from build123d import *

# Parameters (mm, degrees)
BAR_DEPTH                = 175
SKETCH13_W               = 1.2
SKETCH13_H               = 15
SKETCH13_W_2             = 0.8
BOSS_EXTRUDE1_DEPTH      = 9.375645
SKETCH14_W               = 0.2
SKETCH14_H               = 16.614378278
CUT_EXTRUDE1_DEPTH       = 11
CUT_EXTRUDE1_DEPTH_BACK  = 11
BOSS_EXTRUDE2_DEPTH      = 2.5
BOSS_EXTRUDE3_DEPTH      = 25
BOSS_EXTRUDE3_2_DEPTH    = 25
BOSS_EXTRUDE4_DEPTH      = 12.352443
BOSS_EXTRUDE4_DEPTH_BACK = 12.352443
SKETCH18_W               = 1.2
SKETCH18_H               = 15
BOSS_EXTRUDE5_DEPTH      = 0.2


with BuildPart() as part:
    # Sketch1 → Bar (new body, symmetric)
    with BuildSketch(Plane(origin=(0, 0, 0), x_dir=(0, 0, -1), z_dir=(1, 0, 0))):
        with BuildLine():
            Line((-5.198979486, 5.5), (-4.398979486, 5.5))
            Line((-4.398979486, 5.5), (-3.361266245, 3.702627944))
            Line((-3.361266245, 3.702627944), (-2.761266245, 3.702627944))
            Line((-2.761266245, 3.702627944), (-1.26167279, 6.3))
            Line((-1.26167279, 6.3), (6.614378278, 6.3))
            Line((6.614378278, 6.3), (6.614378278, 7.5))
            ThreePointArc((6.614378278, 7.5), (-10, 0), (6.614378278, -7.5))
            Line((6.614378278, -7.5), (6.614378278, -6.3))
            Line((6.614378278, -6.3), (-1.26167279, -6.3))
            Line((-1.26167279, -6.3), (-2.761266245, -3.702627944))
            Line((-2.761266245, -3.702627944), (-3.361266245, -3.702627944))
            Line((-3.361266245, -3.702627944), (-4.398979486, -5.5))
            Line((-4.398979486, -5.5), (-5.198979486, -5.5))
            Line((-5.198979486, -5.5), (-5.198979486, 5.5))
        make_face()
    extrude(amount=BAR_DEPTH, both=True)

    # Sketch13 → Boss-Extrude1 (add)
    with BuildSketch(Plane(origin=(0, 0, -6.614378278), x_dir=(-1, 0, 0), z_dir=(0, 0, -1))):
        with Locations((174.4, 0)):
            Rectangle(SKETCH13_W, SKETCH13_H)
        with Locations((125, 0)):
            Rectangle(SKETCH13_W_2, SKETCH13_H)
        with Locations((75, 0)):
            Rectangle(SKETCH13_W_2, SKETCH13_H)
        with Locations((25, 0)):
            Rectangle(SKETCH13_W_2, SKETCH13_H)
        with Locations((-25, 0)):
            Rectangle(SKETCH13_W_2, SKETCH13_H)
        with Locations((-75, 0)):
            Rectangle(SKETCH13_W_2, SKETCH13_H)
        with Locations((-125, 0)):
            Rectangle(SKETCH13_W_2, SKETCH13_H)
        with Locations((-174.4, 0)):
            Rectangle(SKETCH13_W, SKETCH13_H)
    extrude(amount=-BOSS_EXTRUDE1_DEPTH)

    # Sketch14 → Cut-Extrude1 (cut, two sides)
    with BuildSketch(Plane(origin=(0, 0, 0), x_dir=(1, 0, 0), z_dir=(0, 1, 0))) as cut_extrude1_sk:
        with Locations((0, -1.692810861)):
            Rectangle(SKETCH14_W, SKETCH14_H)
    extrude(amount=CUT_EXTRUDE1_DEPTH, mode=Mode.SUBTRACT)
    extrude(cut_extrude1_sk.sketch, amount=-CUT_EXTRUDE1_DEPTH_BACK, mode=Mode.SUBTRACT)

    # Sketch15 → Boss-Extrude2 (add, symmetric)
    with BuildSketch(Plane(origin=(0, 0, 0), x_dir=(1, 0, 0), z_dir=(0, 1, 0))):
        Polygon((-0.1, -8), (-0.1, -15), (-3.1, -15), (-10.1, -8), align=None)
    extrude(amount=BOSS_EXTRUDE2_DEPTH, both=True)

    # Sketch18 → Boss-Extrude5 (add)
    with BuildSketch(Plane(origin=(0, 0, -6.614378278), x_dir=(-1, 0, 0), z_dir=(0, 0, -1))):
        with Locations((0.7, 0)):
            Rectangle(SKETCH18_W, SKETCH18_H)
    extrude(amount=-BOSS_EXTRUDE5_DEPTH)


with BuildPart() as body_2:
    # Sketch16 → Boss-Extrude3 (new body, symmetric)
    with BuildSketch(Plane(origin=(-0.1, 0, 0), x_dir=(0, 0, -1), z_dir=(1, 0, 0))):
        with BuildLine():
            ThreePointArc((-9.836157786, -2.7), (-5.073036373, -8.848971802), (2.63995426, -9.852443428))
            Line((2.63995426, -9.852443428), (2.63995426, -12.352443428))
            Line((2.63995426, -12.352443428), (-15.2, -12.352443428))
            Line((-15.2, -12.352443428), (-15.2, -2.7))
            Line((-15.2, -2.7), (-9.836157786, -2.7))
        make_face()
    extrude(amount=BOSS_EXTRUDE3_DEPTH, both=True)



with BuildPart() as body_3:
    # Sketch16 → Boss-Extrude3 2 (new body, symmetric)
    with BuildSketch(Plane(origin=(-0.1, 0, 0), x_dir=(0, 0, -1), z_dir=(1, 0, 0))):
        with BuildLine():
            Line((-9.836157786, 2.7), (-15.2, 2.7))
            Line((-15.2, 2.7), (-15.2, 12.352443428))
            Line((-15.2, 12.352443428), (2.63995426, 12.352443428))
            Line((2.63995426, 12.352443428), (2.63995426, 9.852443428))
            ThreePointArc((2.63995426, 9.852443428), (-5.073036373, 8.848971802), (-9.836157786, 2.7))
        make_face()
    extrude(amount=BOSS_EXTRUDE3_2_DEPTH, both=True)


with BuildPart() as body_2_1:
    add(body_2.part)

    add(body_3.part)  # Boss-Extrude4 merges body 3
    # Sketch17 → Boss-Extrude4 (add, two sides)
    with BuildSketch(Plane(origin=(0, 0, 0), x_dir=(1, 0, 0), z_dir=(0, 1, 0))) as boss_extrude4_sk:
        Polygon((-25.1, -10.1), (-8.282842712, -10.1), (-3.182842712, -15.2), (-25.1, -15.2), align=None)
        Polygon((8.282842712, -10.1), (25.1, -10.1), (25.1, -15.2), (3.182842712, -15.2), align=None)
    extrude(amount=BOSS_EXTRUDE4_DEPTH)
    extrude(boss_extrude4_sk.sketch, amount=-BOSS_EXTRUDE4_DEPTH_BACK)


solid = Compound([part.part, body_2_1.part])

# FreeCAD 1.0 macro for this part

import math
import FreeCAD as App
import Part
import Sketcher
from FreeCAD import Vector
Q = App.Units.Quantity

doc = App.newDocument("Part")
body = doc.addObject("PartDesign::Body", "Body")
body.AllowCompound = True

sketch1 = body.newObject("Sketcher::SketchObject", "Sketch")
sketch1.AttachmentSupport = (doc.getObject("YZ_Plane"), [""])
sketch1.MapMode = "FlatFace"
sketch1.addGeometry([
    Part.LineSegment(Vector(5.5, 5.2, 0), Vector(5.5, 4.4, 0)),
    Part.LineSegment(Vector(5.5, 4.4, 0), Vector(3.7, 3.4, 0)),
    Part.LineSegment(Vector(3.7, 3.4, 0), Vector(3.7, 2.8, 0)),
    Part.LineSegment(Vector(3.7, 2.8, 0), Vector(6.3, 1.3, 0)),
    Part.LineSegment(Vector(6.3, 1.3, 0), Vector(6.3, -6.6, 0)),
    Part.LineSegment(Vector(6.3, -6.6, 0), Vector(7.5, -6.6, 0)),
    Part.ArcOfCircle(Part.Circle(Vector(0, 0, 0), Vector(0, 0, 1), 10), math.radians(-41), math.radians(221)),
    Part.LineSegment(Vector(-7.5, -6.6, 0), Vector(-6.3, -6.6, 0)),
    Part.LineSegment(Vector(-6.3, -6.6, 0), Vector(-6.3, 1.3, 0)),
    Part.LineSegment(Vector(-6.3, 1.3, 0), Vector(-3.7, 2.8, 0)),
    Part.LineSegment(Vector(-3.7, 2.8, 0), Vector(-3.7, 3.4, 0)),
    Part.LineSegment(Vector(-3.7, 3.4, 0), Vector(-5.5, 4.4, 0)),
    Part.LineSegment(Vector(-5.5, 4.4, 0), Vector(-5.5, 5.2, 0)),
    Part.LineSegment(Vector(-5.5, 5.2, 0), Vector(5.5, 5.2, 0)),
], False)
sketch1.addConstraint([
    Sketcher.Constraint("Coincident", 0, 2, 1, 1),
    Sketcher.Constraint("Coincident", 1, 2, 2, 1),
    Sketcher.Constraint("Coincident", 2, 2, 3, 1),
    Sketcher.Constraint("Coincident", 3, 2, 4, 1),
    Sketcher.Constraint("Coincident", 4, 2, 5, 1),
    Sketcher.Constraint("Coincident", 5, 2, 6, 1),
    Sketcher.Constraint("Coincident", 6, 2, 7, 1),
    Sketcher.Constraint("Coincident", 7, 2, 8, 1),
    Sketcher.Constraint("Coincident", 8, 2, 9, 1),
    Sketcher.Constraint("Coincident", 9, 2, 10, 1),
    Sketcher.Constraint("Coincident", 10, 2, 11, 1),
    Sketcher.Constraint("Coincident", 11, 2, 12, 1),
    Sketcher.Constraint("Coincident", 12, 2, 13, 1),
    Sketcher.Constraint("Coincident", 13, 2, 0, 1),
    Sketcher.Constraint("Vertical", 0),
    Sketcher.Constraint("Vertical", 2),
    Sketcher.Constraint("Vertical", 4),
    Sketcher.Constraint("Horizontal", 5),
    Sketcher.Constraint("Horizontal", 7),
    Sketcher.Constraint("Vertical", 8),
    Sketcher.Constraint("Vertical", 10),
    Sketcher.Constraint("Vertical", 12),
    Sketcher.Constraint("Horizontal", 13),
    Sketcher.Constraint("Coincident", 6, 3, -1, 1),
    Sketcher.Constraint("Symmetric", 4, 2, 7, 2, -2),
    Sketcher.Constraint("Symmetric", 2, 2, 9, 2, -2),
    Sketcher.Constraint("Symmetric", 0, 2, 11, 2, -2),
    Sketcher.Constraint("Parallel", 1, 9),
    Sketcher.Constraint("Parallel", 3, 11),
    Sketcher.Constraint("Horizontal", 3, 2, 8, 2),
    Sketcher.Constraint("Radius", 6, Q("10 mm")),
    Sketcher.Constraint("DistanceX", 13, 1, 13, 2, Q("11 mm")),
    Sketcher.Constraint("Angle", 1, Q("-150 deg")),
    Sketcher.Constraint("DistanceX", 5, 1, 5, 2, Q("1.2 mm")),
    Sketcher.Constraint("DistanceY", 0, 2, 0, 1, Q("0.8 mm")),
    Sketcher.Constraint("DistanceY", 2, 2, 2, 1, Q("0.6 mm")),
    Sketcher.Constraint("DistanceX", 6, 2, 5, 2, Q("15 mm")),
    Sketcher.Constraint("DistanceY", 4, 2, 4, 1, Q("7.876051 mm")),
    Sketcher.Constraint("DistanceY", -1, 1, 0, 2, Q("4.398979 mm")),
])
pad1 = body.newObject("PartDesign::Pad", "Pad")
pad1.Profile = sketch1
pad1.Length = 350
pad1.Midplane = True

sketch2 = body.newObject("Sketcher::SketchObject", "Sketch001")
sketch2.AttachmentSupport = (doc.getObject("XY_Plane"), [""])
sketch2.MapMode = "FlatFace"
sketch2.AttachmentOffset = App.Placement(Vector(0, 0, -6.614378), App.Rotation())
sketch2.addGeometry([
    Part.LineSegment(Vector(-173.8, 7.5, 0), Vector(-173.8, -7.5, 0)),
    Part.LineSegment(Vector(-173.8, -7.5, 0), Vector(-175, -7.5, 0)),
    Part.LineSegment(Vector(-175, -7.5, 0), Vector(-175, 7.5, 0)),
    Part.LineSegment(Vector(-175, 7.5, 0), Vector(-173.8, 7.5, 0)),
    Part.LineSegment(Vector(-124.6, 7.5, 0), Vector(-124.6, -7.5, 0)),
    Part.LineSegment(Vector(-124.6, -7.5, 0), Vector(-125.4, -7.5, 0)),
    Part.LineSegment(Vector(-125.4, -7.5, 0), Vector(-125.4, 7.5, 0)),
    Part.LineSegment(Vector(-125.4, 7.5, 0), Vector(-124.6, 7.5, 0)),
    Part.LineSegment(Vector(-74.6, 7.5, 0), Vector(-74.6, -7.5, 0)),
    Part.LineSegment(Vector(-74.6, -7.5, 0), Vector(-75.4, -7.5, 0)),
    Part.LineSegment(Vector(-75.4, -7.5, 0), Vector(-75.4, 7.5, 0)),
    Part.LineSegment(Vector(-75.4, 7.5, 0), Vector(-74.6, 7.5, 0)),
    Part.LineSegment(Vector(-24.6, 7.5, 0), Vector(-24.6, -7.5, 0)),
    Part.LineSegment(Vector(-24.6, -7.5, 0), Vector(-25.4, -7.5, 0)),
    Part.LineSegment(Vector(-25.4, -7.5, 0), Vector(-25.4, 7.5, 0)),
    Part.LineSegment(Vector(-25.4, 7.5, 0), Vector(-24.6, 7.5, 0)),
    Part.LineSegment(Vector(25.4, 7.5, 0), Vector(25.4, -7.5, 0)),
    Part.LineSegment(Vector(25.4, -7.5, 0), Vector(24.6, -7.5, 0)),
    Part.LineSegment(Vector(24.6, -7.5, 0), Vector(24.6, 7.5, 0)),
    Part.LineSegment(Vector(24.6, 7.5, 0), Vector(25.4, 7.5, 0)),
    Part.LineSegment(Vector(75.4, 7.5, 0), Vector(75.4, -7.5, 0)),
    Part.LineSegment(Vector(75.4, -7.5, 0), Vector(74.6, -7.5, 0)),
    Part.LineSegment(Vector(74.6, -7.5, 0), Vector(74.6, 7.5, 0)),
    Part.LineSegment(Vector(74.6, 7.5, 0), Vector(75.4, 7.5, 0)),
    Part.LineSegment(Vector(125.4, 7.5, 0), Vector(125.4, -7.5, 0)),
    Part.LineSegment(Vector(125.4, -7.5, 0), Vector(124.6, -7.5, 0)),
    Part.LineSegment(Vector(124.6, -7.5, 0), Vector(124.6, 7.5, 0)),
    Part.LineSegment(Vector(124.6, 7.5, 0), Vector(125.4, 7.5, 0)),
    Part.LineSegment(Vector(175, 7.5, 0), Vector(175, -7.5, 0)),
    Part.LineSegment(Vector(175, -7.5, 0), Vector(173.8, -7.5, 0)),
    Part.LineSegment(Vector(173.8, -7.5, 0), Vector(173.8, 7.5, 0)),
    Part.LineSegment(Vector(173.8, 7.5, 0), Vector(175, 7.5, 0)),
], False)
sketch2.addConstraint([
    Sketcher.Constraint("Coincident", 0, 2, 1, 1),
    Sketcher.Constraint("Coincident", 1, 2, 2, 1),
    Sketcher.Constraint("Coincident", 2, 2, 3, 1),
    Sketcher.Constraint("Coincident", 3, 2, 0, 1),
    Sketcher.Constraint("Coincident", 4, 2, 5, 1),
    Sketcher.Constraint("Coincident", 5, 2, 6, 1),
    Sketcher.Constraint("Coincident", 6, 2, 7, 1),
    Sketcher.Constraint("Coincident", 7, 2, 4, 1),
    Sketcher.Constraint("Coincident", 8, 2, 9, 1),
    Sketcher.Constraint("Coincident", 9, 2, 10, 1),
    Sketcher.Constraint("Coincident", 10, 2, 11, 1),
    Sketcher.Constraint("Coincident", 11, 2, 8, 1),
    Sketcher.Constraint("Coincident", 12, 2, 13, 1),
    Sketcher.Constraint("Coincident", 13, 2, 14, 1),
    Sketcher.Constraint("Coincident", 14, 2, 15, 1),
    Sketcher.Constraint("Coincident", 15, 2, 12, 1),
    Sketcher.Constraint("Coincident", 16, 2, 17, 1),
    Sketcher.Constraint("Coincident", 17, 2, 18, 1),
    Sketcher.Constraint("Coincident", 18, 2, 19, 1),
    Sketcher.Constraint("Coincident", 19, 2, 16, 1),
    Sketcher.Constraint("Coincident", 20, 2, 21, 1),
    Sketcher.Constraint("Coincident", 21, 2, 22, 1),
    Sketcher.Constraint("Coincident", 22, 2, 23, 1),
    Sketcher.Constraint("Coincident", 23, 2, 20, 1),
    Sketcher.Constraint("Coincident", 24, 2, 25, 1),
    Sketcher.Constraint("Coincident", 25, 2, 26, 1),
    Sketcher.Constraint("Coincident", 26, 2, 27, 1),
    Sketcher.Constraint("Coincident", 27, 2, 24, 1),
    Sketcher.Constraint("Coincident", 28, 2, 29, 1),
    Sketcher.Constraint("Coincident", 29, 2, 30, 1),
    Sketcher.Constraint("Coincident", 30, 2, 31, 1),
    Sketcher.Constraint("Coincident", 31, 2, 28, 1),
    Sketcher.Constraint("Vertical", 0),
    Sketcher.Constraint("Horizontal", 1),
    Sketcher.Constraint("Vertical", 2),
    Sketcher.Constraint("Horizontal", 3),
    Sketcher.Constraint("Vertical", 4),
    Sketcher.Constraint("Horizontal", 5),
    Sketcher.Constraint("Vertical", 6),
    Sketcher.Constraint("Horizontal", 7),
    Sketcher.Constraint("Vertical", 8),
    Sketcher.Constraint("Horizontal", 9),
    Sketcher.Constraint("Vertical", 10),
    Sketcher.Constraint("Horizontal", 11),
    Sketcher.Constraint("Vertical", 12),
    Sketcher.Constraint("Horizontal", 13),
    Sketcher.Constraint("Vertical", 14),
    Sketcher.Constraint("Horizontal", 15),
    Sketcher.Constraint("Vertical", 16),
    Sketcher.Constraint("Horizontal", 17),
    Sketcher.Constraint("Vertical", 18),
    Sketcher.Constraint("Horizontal", 19),
    Sketcher.Constraint("Vertical", 20),
    Sketcher.Constraint("Horizontal", 21),
    Sketcher.Constraint("Vertical", 22),
    Sketcher.Constraint("Horizontal", 23),
    Sketcher.Constraint("Vertical", 24),
    Sketcher.Constraint("Horizontal", 25),
    Sketcher.Constraint("Vertical", 26),
    Sketcher.Constraint("Horizontal", 27),
    Sketcher.Constraint("Vertical", 28),
    Sketcher.Constraint("Horizontal", 29),
    Sketcher.Constraint("Vertical", 30),
    Sketcher.Constraint("Horizontal", 31),
    Sketcher.Constraint("Symmetric", 14, 2, 16, 2, -1, 1),
    Sketcher.Constraint("Symmetric", 12, 2, 18, 2, -1, 1),
    Sketcher.Constraint("Symmetric", 10, 2, 20, 2, -1, 1),
    Sketcher.Constraint("Symmetric", 8, 2, 22, 2, -1, 1),
    Sketcher.Constraint("Symmetric", 6, 2, 24, 2, -1, 1),
    Sketcher.Constraint("Symmetric", 4, 2, 26, 2, -1, 1),
    Sketcher.Constraint("Symmetric", 2, 2, 28, 2, -1, 1),
    Sketcher.Constraint("Symmetric", 0, 2, 30, 2, -1, 1),
    Sketcher.Constraint("Horizontal", 1, 2, 4, 2),
    Sketcher.Constraint("Horizontal", 3, 2, 6, 2),
    Sketcher.Constraint("Horizontal", 5, 2, 8, 2),
    Sketcher.Constraint("Horizontal", 7, 2, 10, 2),
    Sketcher.Constraint("Horizontal", 9, 2, 12, 2),
    Sketcher.Constraint("Horizontal", 11, 2, 14, 2),
    Sketcher.Constraint("Horizontal", 13, 2, 16, 2),
    Sketcher.Constraint("Equal", 7, 9),
    Sketcher.Constraint("Equal", 11, 13),
    Sketcher.Constraint("DistanceY", 0, 2, 0, 1, Q("15 mm")),
    Sketcher.Constraint("DistanceX", 1, 2, 1, 1, Q("1.2 mm")),
    Sketcher.Constraint("DistanceX", 5, 2, 5, 1, Q("0.8 mm")),
    Sketcher.Constraint("DistanceX", 1, 2, -1, 1, Q("175 mm")),
    Sketcher.Constraint("DistanceX", 4, 2, 8, 2, Q("50 mm")),
    Sketcher.Constraint("DistanceX", 8, 2, 12, 2, Q("50 mm")),
    Sketcher.Constraint("DistanceX", 12, 2, 16, 2, Q("50 mm")),
])
pad2 = body.newObject("PartDesign::Pad", "Pad001")
pad2.Profile = sketch2
pad2.Length = 9.375645

sketch3 = body.newObject("Sketcher::SketchObject", "Sketch002")
sketch3.AttachmentSupport = (doc.getObject("XZ_Plane"), [""])
sketch3.MapMode = "FlatFace"
sketch3.addGeometry([
    Part.LineSegment(Vector(-0.1, -6.61, 0), Vector(-0.1, 10, 0)),
    Part.LineSegment(Vector(-0.1, 10, 0), Vector(0.1, 10, 0)),
    Part.LineSegment(Vector(0.1, 10, 0), Vector(0.1, -6.61, 0)),
    Part.LineSegment(Vector(0.1, -6.61, 0), Vector(-0.1, -6.61, 0)),
], False)
sketch3.addConstraint([
    Sketcher.Constraint("Coincident", 0, 2, 1, 1),
    Sketcher.Constraint("Coincident", 1, 2, 2, 1),
    Sketcher.Constraint("Coincident", 2, 2, 3, 1),
    Sketcher.Constraint("Coincident", 3, 2, 0, 1),
    Sketcher.Constraint("Vertical", 0),
    Sketcher.Constraint("Horizontal", 1),
    Sketcher.Constraint("Vertical", 2),
    Sketcher.Constraint("Horizontal", 3),
    Sketcher.Constraint("DistanceX", 1, 1, 1, 2, Q("0.2 mm")),
    Sketcher.Constraint("DistanceY", -1, 1, 0, 2, Q("10 mm")),
    Sketcher.Constraint("DistanceX", 0, 2, -1, 1, Q("0.1 mm")),
    Sketcher.Constraint("DistanceY", 0, 1, 0, 2, Q("16.614378 mm")),
])
pocket1 = body.newObject("PartDesign::Pocket", "Pocket")
pocket1.Profile = sketch3
pocket1.Type = "ThroughAll"
pocket1.Midplane = True

sketch4 = body.newObject("Sketcher::SketchObject", "Sketch003")
sketch4.AttachmentSupport = (doc.getObject("XZ_Plane"), [""])
sketch4.MapMode = "FlatFace"
sketch4.addGeometry([
    Part.LineSegment(Vector(-0.1, 15, 0), Vector(-0.1, 8, 0)),
    Part.LineSegment(Vector(-0.1, 8, 0), Vector(-10.1, 8, 0)),
    Part.LineSegment(Vector(-10.1, 8, 0), Vector(-3.1, 15, 0)),
    Part.LineSegment(Vector(-3.1, 15, 0), Vector(-0.1, 15, 0)),
], False)
sketch4.addConstraint([
    Sketcher.Constraint("Coincident", 0, 2, 1, 1),
    Sketcher.Constraint("Coincident", 1, 2, 2, 1),
    Sketcher.Constraint("Coincident", 2, 2, 3, 1),
    Sketcher.Constraint("Coincident", 3, 2, 0, 1),
    Sketcher.Constraint("Vertical", 0),
    Sketcher.Constraint("Horizontal", 1),
    Sketcher.Constraint("Horizontal", 3),
    Sketcher.Constraint("DistanceX", 1, 2, 1, 1, Q("10 mm")),
    Sketcher.Constraint("DistanceX", 3, 1, 3, 2, Q("3 mm")),
    Sketcher.Constraint("DistanceY", 0, 2, 0, 1, Q("7 mm")),
    Sketcher.Constraint("DistanceY", -1, 1, 0, 2, Q("8 mm")),
    Sketcher.Constraint("DistanceX", 0, 2, -1, 1, Q("0.1 mm")),
])
pad3 = body.newObject("PartDesign::Pad", "Pad002")
pad3.Profile = sketch4
pad3.Length = 5
pad3.Midplane = True

sketch5 = body.newObject("Sketcher::SketchObject", "Sketch004")
sketch5.AttachmentSupport = (doc.getObject("XY_Plane"), [""])
sketch5.MapMode = "FlatFace"
sketch5.AttachmentOffset = App.Placement(Vector(0, 0, -6.614378), App.Rotation())
sketch5.addGeometry([
    Part.LineSegment(Vector(-0.1, 7.5, 0), Vector(-0.1, -7.5, 0)),
    Part.LineSegment(Vector(-0.1, -7.5, 0), Vector(-1.3, -7.5, 0)),
    Part.LineSegment(Vector(-1.3, -7.5, 0), Vector(-1.3, 7.5, 0)),
    Part.LineSegment(Vector(-1.3, 7.5, 0), Vector(-0.1, 7.5, 0)),
], False)
sketch5.addConstraint([
    Sketcher.Constraint("Coincident", 0, 2, 1, 1),
    Sketcher.Constraint("Coincident", 1, 2, 2, 1),
    Sketcher.Constraint("Coincident", 2, 2, 3, 1),
    Sketcher.Constraint("Coincident", 3, 2, 0, 1),
    Sketcher.Constraint("Vertical", 0),
    Sketcher.Constraint("Horizontal", 1),
    Sketcher.Constraint("Vertical", 2),
    Sketcher.Constraint("Horizontal", 3),
    Sketcher.Constraint("DistanceY", 0, 2, 0, 1, Q("15 mm")),
    Sketcher.Constraint("DistanceX", 1, 2, 1, 1, Q("1.2 mm")),
    Sketcher.Constraint("DistanceX", 0, 2, -1, 1, Q("0.1 mm")),
    Sketcher.Constraint("DistanceY", 0, 2, -1, 1, Q("7.5 mm")),
])
pad4 = body.newObject("PartDesign::Pad", "Pad003")
pad4.Profile = sketch5
pad4.Length = 0.2
body2 = doc.addObject("PartDesign::Body", "Body001")

sketch6 = body2.newObject("Sketcher::SketchObject", "Sketch005")
sketch6.AttachmentSupport = (doc.getObject("YZ_Plane001"), [""])
sketch6.MapMode = "FlatFace"
sketch6.AttachmentOffset = App.Placement(Vector(0, 0, -0.1), App.Rotation())
sketch6.addGeometry([
    Part.ArcOfCircle(Part.Circle(Vector(0, 0, 0), Vector(0, 0, 1), 10.2), math.radians(105), math.radians(195)),
    Part.LineSegment(Vector(-2.7, 9.8, 0), Vector(-2.7, 15.2, 0)),
    Part.LineSegment(Vector(-2.7, 15.2, 0), Vector(-12.4, 15.2, 0)),
    Part.LineSegment(Vector(-12.4, 15.2, 0), Vector(-12.4, -2.6, 0)),
    Part.LineSegment(Vector(-12.4, -2.6, 0), Vector(-9.9, -2.6, 0)),
], False)
sketch6.addConstraint([
    Sketcher.Constraint("Coincident", 0, 1, 1, 1),
    Sketcher.Constraint("Coincident", 1, 2, 2, 1),
    Sketcher.Constraint("Coincident", 2, 2, 3, 1),
    Sketcher.Constraint("Coincident", 3, 2, 4, 1),
    Sketcher.Constraint("Coincident", 4, 2, 0, 2),
    Sketcher.Constraint("Vertical", 1),
    Sketcher.Constraint("Horizontal", 2),
    Sketcher.Constraint("Vertical", 3),
    Sketcher.Constraint("Horizontal", 4),
    Sketcher.Constraint("Coincident", 0, 3, -1, 1),
    Sketcher.Constraint("Radius", 0, Q("10.2 mm")),
    Sketcher.Constraint("DistanceX", 4, 1, 4, 2, Q("2.5 mm")),
    Sketcher.Constraint("DistanceX", 0, 1, -1, 1, Q("2.7 mm")),
    Sketcher.Constraint("DistanceY", -1, 1, 1, 2, Q("15.2 mm")),
    Sketcher.Constraint("DistanceX", 2, 2, 2, 1, Q("9.652443 mm")),
])
pad5 = body2.newObject("PartDesign::Pad", "Pad004")
pad5.Profile = sketch6
pad5.Length = 50
pad5.Midplane = True
body3 = doc.addObject("PartDesign::Body", "Body002")

sketch7 = body3.newObject("Sketcher::SketchObject", "Sketch006")
sketch7.AttachmentSupport = (doc.getObject("YZ_Plane002"), [""])
sketch7.MapMode = "FlatFace"
sketch7.AttachmentOffset = App.Placement(Vector(0, 0, -0.1), App.Rotation())
sketch7.addGeometry([
    Part.LineSegment(Vector(2.7, 15.2, 0), Vector(2.7, 9.8, 0)),
    Part.ArcOfCircle(Part.Circle(Vector(0, 0, 0), Vector(0, 0, 1), 10.2), math.radians(-15), math.radians(75)),
    Part.LineSegment(Vector(9.9, -2.6, 0), Vector(12.4, -2.6, 0)),
    Part.LineSegment(Vector(12.4, -2.6, 0), Vector(12.4, 15.2, 0)),
    Part.LineSegment(Vector(12.4, 15.2, 0), Vector(2.7, 15.2, 0)),
], False)
sketch7.addConstraint([
    Sketcher.Constraint("Coincident", 0, 2, 1, 2),
    Sketcher.Constraint("Coincident", 1, 1, 2, 1),
    Sketcher.Constraint("Coincident", 2, 2, 3, 1),
    Sketcher.Constraint("Coincident", 3, 2, 4, 1),
    Sketcher.Constraint("Coincident", 4, 2, 0, 1),
    Sketcher.Constraint("Vertical", 0),
    Sketcher.Constraint("Horizontal", 2),
    Sketcher.Constraint("Vertical", 3),
    Sketcher.Constraint("Horizontal", 4),
    Sketcher.Constraint("Coincident", 1, 3, -1, 1),
    Sketcher.Constraint("Radius", 1, Q("10.2 mm")),
    Sketcher.Constraint("DistanceX", 2, 1, 2, 2, Q("2.5 mm")),
    Sketcher.Constraint("DistanceX", -1, 1, 0, 2, Q("2.7 mm")),
    Sketcher.Constraint("DistanceY", -1, 1, 3, 2, Q("15.2 mm")),
    Sketcher.Constraint("DistanceX", 4, 2, 4, 1, Q("9.652443 mm")),
])
pad6 = body3.newObject("PartDesign::Pad", "Pad005")
pad6.Profile = sketch7
pad6.Length = 50
pad6.Midplane = True
body2.AllowCompound = True
doc.recompute()

boolean = body2.newObject("PartDesign::Boolean", "Boolean")
boolean.Type = "Fuse"
boolean.addObjects([body3])

sketch8 = body2.newObject("Sketcher::SketchObject", "Sketch007")
sketch8.AttachmentSupport = (doc.getObject("XZ_Plane001"), [""])
sketch8.MapMode = "FlatFace"
sketch8.addGeometry([
    Part.LineSegment(Vector(-8, 10, 0), Vector(-25, 10, 0)),
    Part.LineSegment(Vector(-25, 10, 0), Vector(-25, 15, 0)),
    Part.LineSegment(Vector(-25, 15, 0), Vector(-3, 15, 0)),
    Part.LineSegment(Vector(-3, 15, 0), Vector(-8, 10, 0)),
    Part.LineSegment(Vector(25, 10, 0), Vector(8, 10, 0)),
    Part.LineSegment(Vector(8, 10, 0), Vector(3, 15, 0)),
    Part.LineSegment(Vector(3, 15, 0), Vector(25, 15, 0)),
    Part.LineSegment(Vector(25, 15, 0), Vector(25, 10, 0)),
], False)
sketch8.addConstraint([
    Sketcher.Constraint("Coincident", 0, 2, 1, 1),
    Sketcher.Constraint("Coincident", 1, 2, 2, 1),
    Sketcher.Constraint("Coincident", 2, 2, 3, 1),
    Sketcher.Constraint("Coincident", 3, 2, 0, 1),
    Sketcher.Constraint("Coincident", 4, 2, 5, 1),
    Sketcher.Constraint("Coincident", 5, 2, 6, 1),
    Sketcher.Constraint("Coincident", 6, 2, 7, 1),
    Sketcher.Constraint("Coincident", 7, 2, 4, 1),
    Sketcher.Constraint("Horizontal", 0),
    Sketcher.Constraint("Vertical", 1),
    Sketcher.Constraint("Horizontal", 2),
    Sketcher.Constraint("Horizontal", 4),
    Sketcher.Constraint("Horizontal", 6),
    Sketcher.Constraint("Vertical", 7),
    Sketcher.Constraint("Symmetric", 3, 2, 4, 2, -2),
    Sketcher.Constraint("Symmetric", 2, 2, 5, 2, -2),
    Sketcher.Constraint("Perpendicular", 3, 5),
    Sketcher.Constraint("Equal", 0, 4),
    Sketcher.Constraint("DistanceY", 1, 1, 1, 2, Q("5.1 mm")),
    Sketcher.Constraint("DistanceX", 0, 2, -1, 1, Q("25.1 mm")),
    Sketcher.Constraint("DistanceY", -1, 1, 0, 2, Q("10.1 mm")),
    Sketcher.Constraint("DistanceX", 0, 2, 0, 1, Q("16.817157 mm")),
])
pad7 = body2.newObject("PartDesign::Pad", "Pad006")
pad7.Profile = sketch8
pad7.Type = "TwoLengths"
pad7.Length = 12.352443
pad7.Length2 = 12.352443
pad7.Reversed = True

doc.recompute()
